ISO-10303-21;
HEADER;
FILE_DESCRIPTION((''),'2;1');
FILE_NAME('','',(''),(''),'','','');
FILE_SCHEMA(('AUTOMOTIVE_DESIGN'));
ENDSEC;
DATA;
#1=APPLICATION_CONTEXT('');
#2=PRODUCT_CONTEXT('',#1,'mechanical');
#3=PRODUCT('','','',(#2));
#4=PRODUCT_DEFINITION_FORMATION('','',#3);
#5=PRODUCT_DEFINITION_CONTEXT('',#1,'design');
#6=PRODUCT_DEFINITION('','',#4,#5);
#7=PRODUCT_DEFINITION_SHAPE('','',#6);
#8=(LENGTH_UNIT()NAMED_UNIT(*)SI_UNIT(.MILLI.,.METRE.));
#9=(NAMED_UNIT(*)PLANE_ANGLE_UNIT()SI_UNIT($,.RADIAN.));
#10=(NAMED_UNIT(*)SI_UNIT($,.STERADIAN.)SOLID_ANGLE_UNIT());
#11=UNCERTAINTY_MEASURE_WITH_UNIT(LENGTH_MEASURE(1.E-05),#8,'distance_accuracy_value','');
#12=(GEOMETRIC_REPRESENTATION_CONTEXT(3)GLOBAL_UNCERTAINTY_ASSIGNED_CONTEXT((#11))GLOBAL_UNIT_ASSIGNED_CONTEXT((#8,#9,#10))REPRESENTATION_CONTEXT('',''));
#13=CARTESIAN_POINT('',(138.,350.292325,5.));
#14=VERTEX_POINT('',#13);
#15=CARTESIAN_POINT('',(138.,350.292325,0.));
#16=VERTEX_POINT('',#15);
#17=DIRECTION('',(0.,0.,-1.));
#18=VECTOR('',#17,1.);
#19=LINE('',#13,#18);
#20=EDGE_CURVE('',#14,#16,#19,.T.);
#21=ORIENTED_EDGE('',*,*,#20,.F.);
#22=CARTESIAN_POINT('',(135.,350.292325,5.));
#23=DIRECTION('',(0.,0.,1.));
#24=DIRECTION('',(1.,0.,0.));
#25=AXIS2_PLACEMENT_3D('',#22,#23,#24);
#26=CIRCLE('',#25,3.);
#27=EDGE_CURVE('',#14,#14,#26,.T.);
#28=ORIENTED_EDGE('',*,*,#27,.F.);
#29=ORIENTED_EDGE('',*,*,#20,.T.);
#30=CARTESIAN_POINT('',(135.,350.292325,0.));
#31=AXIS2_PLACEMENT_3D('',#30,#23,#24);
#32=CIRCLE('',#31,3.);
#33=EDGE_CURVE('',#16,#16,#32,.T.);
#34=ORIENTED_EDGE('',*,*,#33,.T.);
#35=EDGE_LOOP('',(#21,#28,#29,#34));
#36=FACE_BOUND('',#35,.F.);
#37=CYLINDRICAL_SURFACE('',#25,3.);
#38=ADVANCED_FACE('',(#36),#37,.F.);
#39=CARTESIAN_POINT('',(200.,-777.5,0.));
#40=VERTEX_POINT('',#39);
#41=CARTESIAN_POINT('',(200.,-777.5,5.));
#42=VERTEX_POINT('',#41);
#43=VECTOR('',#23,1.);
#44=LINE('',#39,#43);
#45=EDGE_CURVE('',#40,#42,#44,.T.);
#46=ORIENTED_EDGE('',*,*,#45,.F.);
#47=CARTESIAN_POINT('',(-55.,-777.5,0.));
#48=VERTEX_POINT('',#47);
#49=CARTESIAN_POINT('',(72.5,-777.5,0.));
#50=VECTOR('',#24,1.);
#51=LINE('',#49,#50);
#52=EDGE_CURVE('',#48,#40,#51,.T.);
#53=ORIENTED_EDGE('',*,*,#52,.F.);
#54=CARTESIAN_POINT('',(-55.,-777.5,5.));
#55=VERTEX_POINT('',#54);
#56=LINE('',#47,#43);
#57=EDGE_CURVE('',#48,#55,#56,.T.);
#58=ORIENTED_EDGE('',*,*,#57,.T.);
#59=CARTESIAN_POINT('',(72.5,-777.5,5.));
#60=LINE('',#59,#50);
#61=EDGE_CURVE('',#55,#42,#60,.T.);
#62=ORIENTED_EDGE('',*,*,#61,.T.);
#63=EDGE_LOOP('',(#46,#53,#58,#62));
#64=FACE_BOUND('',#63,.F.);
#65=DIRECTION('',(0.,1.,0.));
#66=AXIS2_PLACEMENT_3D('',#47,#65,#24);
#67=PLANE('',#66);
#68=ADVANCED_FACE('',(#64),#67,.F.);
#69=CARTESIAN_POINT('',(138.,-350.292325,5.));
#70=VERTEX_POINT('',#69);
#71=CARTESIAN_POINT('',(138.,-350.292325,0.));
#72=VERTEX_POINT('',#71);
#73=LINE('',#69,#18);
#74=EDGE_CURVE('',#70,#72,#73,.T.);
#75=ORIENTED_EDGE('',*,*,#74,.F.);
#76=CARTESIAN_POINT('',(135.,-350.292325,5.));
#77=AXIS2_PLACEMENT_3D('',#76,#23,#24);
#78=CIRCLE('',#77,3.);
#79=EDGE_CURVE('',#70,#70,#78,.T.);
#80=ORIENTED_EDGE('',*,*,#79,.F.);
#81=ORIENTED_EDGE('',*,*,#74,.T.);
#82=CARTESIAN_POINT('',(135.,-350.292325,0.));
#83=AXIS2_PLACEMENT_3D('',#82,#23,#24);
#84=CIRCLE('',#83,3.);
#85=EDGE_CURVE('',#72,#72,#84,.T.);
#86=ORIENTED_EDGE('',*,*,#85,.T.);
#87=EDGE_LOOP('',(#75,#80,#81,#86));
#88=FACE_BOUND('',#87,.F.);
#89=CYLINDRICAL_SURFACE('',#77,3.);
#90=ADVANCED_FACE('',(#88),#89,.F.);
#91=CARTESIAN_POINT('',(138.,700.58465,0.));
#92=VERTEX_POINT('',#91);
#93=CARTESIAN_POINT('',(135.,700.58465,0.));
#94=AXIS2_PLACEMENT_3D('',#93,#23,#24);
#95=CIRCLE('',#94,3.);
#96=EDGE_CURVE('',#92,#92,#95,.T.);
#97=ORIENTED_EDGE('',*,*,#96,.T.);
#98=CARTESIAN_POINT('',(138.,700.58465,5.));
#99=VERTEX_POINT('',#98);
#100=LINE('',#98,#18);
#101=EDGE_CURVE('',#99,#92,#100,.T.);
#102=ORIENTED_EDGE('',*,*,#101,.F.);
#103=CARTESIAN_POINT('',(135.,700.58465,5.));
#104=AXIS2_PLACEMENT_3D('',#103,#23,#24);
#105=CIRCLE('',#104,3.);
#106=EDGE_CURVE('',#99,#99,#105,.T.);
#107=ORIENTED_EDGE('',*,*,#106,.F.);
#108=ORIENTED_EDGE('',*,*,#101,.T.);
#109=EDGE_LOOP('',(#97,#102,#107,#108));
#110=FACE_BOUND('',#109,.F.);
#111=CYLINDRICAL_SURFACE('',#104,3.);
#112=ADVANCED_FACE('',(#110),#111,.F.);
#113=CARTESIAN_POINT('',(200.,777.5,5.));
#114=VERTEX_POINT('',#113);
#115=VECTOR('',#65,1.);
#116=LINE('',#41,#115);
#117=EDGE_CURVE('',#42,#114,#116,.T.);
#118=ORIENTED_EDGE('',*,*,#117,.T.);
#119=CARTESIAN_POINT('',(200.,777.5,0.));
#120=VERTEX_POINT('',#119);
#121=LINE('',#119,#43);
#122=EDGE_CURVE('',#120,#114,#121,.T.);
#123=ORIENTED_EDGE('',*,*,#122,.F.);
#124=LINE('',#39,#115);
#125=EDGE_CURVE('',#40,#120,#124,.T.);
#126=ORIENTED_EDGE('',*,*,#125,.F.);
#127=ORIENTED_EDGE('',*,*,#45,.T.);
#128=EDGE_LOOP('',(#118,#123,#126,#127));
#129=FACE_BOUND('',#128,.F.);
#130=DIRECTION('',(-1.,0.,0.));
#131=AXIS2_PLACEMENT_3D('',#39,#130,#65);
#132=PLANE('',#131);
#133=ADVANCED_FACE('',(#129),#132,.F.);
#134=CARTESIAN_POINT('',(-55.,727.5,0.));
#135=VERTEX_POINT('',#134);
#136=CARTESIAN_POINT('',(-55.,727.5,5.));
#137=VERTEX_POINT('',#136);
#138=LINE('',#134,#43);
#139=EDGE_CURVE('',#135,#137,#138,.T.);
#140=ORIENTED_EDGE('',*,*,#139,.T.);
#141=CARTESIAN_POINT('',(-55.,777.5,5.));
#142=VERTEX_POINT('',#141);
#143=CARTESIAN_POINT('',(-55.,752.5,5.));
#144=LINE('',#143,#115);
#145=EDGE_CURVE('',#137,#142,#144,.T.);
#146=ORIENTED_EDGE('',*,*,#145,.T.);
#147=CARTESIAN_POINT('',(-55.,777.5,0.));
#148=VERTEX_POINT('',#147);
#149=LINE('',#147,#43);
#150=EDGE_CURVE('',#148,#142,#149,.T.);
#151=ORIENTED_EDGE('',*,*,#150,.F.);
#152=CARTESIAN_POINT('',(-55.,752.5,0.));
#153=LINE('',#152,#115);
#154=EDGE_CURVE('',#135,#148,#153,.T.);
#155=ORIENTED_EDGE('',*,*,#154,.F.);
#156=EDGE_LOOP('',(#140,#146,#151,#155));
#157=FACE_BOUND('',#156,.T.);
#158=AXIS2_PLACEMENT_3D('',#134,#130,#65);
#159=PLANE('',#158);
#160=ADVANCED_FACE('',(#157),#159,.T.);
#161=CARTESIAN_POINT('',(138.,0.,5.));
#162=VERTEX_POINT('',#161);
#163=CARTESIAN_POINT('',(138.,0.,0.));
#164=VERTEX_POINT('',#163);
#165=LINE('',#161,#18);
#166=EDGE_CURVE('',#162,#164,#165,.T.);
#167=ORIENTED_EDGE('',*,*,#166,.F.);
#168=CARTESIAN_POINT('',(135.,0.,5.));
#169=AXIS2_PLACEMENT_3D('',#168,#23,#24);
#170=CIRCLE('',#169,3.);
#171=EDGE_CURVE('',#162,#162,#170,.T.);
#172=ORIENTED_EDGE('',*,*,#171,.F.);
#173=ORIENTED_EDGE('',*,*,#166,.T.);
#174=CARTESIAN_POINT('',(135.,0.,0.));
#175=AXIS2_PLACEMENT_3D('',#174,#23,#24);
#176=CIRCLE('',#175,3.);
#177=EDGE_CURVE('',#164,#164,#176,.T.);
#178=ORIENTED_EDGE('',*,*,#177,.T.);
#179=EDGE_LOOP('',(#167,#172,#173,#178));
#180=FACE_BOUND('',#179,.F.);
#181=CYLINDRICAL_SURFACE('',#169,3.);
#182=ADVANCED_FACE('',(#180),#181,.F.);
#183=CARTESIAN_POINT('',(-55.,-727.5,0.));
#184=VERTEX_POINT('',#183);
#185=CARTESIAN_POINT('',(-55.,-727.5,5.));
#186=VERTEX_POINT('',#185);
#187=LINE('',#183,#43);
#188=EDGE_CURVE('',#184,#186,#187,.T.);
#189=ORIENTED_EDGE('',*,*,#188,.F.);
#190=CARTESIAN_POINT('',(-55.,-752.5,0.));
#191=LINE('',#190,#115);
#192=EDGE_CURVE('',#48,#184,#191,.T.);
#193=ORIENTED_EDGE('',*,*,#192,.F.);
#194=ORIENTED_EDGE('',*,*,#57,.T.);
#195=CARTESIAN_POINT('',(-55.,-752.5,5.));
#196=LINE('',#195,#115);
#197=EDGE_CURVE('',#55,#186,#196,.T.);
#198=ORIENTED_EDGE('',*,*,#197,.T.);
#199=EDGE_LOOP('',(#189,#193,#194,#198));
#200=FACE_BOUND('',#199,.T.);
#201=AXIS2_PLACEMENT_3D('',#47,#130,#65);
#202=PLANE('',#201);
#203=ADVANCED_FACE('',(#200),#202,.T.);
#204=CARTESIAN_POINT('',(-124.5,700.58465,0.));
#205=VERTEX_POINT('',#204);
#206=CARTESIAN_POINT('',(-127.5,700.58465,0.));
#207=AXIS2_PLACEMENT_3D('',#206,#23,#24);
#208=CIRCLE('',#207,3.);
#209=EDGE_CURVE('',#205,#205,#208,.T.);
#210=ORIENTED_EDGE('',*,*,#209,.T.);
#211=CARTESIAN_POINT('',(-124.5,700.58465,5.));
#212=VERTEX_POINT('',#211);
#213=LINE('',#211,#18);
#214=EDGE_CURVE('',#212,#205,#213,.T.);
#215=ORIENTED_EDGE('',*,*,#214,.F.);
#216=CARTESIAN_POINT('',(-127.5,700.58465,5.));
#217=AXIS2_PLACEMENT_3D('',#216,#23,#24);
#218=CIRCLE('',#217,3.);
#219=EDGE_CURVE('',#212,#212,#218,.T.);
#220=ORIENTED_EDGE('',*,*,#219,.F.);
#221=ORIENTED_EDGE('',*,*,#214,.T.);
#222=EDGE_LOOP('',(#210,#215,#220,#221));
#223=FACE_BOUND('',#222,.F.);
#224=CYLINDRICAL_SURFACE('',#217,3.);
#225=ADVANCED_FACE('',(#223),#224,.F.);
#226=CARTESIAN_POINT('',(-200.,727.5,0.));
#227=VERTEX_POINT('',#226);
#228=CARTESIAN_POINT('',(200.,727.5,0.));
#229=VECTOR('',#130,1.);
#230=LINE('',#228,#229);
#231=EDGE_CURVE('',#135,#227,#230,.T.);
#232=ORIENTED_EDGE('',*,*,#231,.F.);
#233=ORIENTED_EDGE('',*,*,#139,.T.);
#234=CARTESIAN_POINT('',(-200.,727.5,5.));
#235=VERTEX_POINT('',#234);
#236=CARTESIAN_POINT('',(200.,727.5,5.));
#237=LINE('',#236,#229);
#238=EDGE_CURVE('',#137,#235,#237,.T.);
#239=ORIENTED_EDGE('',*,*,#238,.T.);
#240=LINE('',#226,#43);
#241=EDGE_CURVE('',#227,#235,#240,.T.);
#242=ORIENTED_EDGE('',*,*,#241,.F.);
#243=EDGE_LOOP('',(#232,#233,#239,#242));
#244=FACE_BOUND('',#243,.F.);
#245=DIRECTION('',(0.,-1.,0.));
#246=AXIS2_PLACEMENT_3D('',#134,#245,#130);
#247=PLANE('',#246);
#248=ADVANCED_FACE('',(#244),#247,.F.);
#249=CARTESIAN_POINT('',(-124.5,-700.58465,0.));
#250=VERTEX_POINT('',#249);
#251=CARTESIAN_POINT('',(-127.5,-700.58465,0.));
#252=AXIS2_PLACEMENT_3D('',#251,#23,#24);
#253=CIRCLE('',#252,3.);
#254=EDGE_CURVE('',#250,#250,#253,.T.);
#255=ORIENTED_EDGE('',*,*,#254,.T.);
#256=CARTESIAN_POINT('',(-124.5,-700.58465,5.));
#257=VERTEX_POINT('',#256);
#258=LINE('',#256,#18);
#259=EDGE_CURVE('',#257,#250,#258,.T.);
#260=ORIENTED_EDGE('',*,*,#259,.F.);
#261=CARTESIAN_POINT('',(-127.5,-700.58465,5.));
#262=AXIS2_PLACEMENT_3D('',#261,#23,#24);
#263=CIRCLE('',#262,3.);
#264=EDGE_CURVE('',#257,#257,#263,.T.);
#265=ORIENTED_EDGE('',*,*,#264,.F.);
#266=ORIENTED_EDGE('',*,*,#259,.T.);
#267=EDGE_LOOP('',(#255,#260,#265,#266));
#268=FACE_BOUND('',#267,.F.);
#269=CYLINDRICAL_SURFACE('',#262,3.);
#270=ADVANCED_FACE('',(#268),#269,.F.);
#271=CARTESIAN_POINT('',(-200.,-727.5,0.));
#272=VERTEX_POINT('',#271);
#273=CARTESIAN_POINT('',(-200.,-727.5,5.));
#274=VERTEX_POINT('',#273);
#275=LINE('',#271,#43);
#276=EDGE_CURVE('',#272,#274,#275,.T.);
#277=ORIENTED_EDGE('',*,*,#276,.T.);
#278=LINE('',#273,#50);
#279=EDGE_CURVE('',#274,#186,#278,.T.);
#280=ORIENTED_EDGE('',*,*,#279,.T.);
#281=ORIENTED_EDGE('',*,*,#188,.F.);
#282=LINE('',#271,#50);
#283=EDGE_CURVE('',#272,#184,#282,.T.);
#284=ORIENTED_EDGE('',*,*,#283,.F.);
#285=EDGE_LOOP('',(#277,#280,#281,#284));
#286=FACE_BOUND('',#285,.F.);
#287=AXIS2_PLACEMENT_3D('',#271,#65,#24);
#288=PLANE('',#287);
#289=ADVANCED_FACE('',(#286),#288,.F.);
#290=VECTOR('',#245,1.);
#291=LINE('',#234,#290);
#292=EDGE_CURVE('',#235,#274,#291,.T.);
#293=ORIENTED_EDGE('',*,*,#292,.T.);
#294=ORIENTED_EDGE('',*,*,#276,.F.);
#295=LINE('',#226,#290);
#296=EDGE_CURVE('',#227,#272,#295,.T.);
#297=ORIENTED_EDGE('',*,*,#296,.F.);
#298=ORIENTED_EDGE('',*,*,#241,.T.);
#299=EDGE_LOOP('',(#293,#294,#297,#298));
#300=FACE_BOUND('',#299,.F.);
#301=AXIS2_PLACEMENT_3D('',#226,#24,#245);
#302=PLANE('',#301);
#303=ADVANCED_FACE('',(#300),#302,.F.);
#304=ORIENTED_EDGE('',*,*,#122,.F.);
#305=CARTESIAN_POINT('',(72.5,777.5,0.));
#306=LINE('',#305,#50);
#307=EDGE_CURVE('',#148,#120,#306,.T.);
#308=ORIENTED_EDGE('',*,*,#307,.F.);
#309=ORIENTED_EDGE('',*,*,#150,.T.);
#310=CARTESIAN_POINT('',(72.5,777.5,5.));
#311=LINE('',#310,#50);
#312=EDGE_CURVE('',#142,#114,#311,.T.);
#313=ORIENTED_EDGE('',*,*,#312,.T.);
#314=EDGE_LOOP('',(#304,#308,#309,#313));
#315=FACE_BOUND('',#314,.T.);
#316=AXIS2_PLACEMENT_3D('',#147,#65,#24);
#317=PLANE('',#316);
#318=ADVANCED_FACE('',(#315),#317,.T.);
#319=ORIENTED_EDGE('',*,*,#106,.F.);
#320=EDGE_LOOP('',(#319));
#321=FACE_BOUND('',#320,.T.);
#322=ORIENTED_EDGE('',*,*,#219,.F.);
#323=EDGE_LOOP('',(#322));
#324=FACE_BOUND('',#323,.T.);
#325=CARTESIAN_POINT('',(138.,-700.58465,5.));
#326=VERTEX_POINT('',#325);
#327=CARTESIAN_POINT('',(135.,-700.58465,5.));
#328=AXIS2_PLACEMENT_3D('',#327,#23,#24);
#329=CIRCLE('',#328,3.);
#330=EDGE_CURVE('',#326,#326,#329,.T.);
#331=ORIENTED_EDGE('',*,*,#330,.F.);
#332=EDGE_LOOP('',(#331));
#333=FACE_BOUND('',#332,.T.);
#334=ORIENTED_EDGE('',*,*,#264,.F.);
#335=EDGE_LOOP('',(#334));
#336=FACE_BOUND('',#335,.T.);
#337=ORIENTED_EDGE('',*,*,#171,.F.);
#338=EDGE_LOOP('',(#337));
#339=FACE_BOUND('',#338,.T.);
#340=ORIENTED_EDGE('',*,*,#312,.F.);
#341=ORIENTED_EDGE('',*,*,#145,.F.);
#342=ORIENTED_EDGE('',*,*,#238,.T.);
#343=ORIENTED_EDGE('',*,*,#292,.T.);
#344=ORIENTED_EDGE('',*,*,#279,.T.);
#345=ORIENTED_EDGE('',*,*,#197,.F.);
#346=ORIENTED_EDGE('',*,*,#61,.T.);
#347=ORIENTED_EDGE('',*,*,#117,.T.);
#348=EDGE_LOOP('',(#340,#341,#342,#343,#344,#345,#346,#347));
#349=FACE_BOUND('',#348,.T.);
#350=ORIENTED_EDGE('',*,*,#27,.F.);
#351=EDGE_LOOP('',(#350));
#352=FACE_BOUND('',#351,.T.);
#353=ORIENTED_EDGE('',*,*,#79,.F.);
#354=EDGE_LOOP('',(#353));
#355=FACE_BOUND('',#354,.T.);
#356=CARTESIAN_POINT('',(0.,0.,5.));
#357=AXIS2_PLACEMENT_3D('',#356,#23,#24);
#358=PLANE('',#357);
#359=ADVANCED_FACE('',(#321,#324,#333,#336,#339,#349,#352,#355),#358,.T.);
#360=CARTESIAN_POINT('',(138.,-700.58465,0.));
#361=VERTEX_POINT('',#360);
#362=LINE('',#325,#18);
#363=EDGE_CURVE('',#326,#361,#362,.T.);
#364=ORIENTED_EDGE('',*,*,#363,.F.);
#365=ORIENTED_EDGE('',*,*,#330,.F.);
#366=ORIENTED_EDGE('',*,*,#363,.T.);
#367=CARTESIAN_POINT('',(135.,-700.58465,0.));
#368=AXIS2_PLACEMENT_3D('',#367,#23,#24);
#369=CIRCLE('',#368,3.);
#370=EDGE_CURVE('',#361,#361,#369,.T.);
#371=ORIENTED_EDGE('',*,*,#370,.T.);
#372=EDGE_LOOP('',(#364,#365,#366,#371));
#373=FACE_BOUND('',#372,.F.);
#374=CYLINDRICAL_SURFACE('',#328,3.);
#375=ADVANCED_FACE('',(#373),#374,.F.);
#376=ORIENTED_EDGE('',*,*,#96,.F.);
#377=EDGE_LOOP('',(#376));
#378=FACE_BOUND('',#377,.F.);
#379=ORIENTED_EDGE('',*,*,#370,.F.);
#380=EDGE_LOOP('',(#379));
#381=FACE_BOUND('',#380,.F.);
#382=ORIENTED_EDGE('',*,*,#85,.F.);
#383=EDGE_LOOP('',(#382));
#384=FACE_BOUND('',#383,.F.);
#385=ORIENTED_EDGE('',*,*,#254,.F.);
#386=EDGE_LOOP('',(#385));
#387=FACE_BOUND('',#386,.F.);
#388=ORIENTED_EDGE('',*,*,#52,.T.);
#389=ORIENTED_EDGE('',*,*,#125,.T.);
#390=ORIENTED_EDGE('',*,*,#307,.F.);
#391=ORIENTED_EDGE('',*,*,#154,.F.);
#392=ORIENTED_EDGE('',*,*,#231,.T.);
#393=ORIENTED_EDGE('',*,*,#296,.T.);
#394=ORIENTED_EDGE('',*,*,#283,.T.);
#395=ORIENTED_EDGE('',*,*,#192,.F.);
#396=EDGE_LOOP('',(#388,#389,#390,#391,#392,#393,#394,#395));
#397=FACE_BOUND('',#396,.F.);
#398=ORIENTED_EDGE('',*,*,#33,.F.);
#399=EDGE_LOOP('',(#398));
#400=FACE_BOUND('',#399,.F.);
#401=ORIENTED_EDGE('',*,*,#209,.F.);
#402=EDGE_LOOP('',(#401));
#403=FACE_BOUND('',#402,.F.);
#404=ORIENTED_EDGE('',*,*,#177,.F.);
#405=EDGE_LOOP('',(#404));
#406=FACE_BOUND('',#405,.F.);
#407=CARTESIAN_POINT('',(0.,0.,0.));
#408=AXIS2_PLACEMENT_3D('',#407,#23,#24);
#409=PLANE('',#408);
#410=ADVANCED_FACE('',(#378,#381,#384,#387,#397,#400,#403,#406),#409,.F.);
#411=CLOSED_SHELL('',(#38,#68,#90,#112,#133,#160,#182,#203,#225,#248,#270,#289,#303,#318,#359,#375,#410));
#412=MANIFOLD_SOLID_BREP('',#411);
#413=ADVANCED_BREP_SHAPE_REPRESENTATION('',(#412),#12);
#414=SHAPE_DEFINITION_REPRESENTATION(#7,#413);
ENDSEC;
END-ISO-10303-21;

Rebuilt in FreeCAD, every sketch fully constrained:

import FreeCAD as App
import Part
import Sketcher

V = App.Vector

doc = App.newDocument("Part")
params = doc.addObject("Spreadsheet::Sheet", "Params")
for row, (alias, value) in enumerate([
    ("sketch1_width", "145 mm"),
    ("sketch1_width2", "255 mm"),
    ("sketch1_height", "1455 mm"),
    ("sketch1_height2", "50 mm"),
    ("pad1_length", "5 mm"),
    ("sketch2_diameter", "6 mm"),
], start=1):
    params.set(f"A{row}", alias)
    params.set(f"B{row}", "=" + value)
    params.setAlias(f"B{row}", alias)

body = doc.addObject("PartDesign::Body", "Body")

# Sketch on XY plane
sketch1 = body.newObject("Sketcher::SketchObject", "Sketch")
sketch1.AttachmentSupport = (doc.getObject("XY_Plane"), [""])
sketch1.MapMode = "FlatFace"
sketch1.addGeometry([
    Part.LineSegment(V(-55, 728, 0), V(-200, 728, 0)),  # 0
    Part.LineSegment(V(-200, 728, 0), V(-200, -728, 0)),  # 1
    Part.LineSegment(V(-200, -728, 0), V(-55, -728, 0)),  # 2
    Part.LineSegment(V(-55, -728, 0), V(-55, -778, 0)),  # 3
    Part.LineSegment(V(-55, -778, 0), V(200, -778, 0)),  # 4
    Part.LineSegment(V(200, -778, 0), V(200, 778, 0)),  # 5
    Part.LineSegment(V(200, 778, 0), V(-55, 778, 0)),  # 6
    Part.LineSegment(V(-55, 778, 0), V(-55, 728, 0)),  # 7
], False)
sketch1.addConstraint([
    Sketcher.Constraint("Coincident", 0, 2, 1, 1),
    Sketcher.Constraint("Coincident", 1, 2, 2, 1),
    Sketcher.Constraint("Coincident", 2, 2, 3, 1),
    Sketcher.Constraint("Coincident", 3, 2, 4, 1),
    Sketcher.Constraint("Coincident", 4, 2, 5, 1),
    Sketcher.Constraint("Coincident", 5, 2, 6, 1),
    Sketcher.Constraint("Coincident", 6, 2, 7, 1),
    Sketcher.Constraint("Coincident", 7, 2, 0, 1),
    Sketcher.Constraint("Horizontal", 0),
    Sketcher.Constraint("Vertical", 1),
    Sketcher.Constraint("Horizontal", 2),
    Sketcher.Constraint("Vertical", 3),
    Sketcher.Constraint("Horizontal", 4),
    Sketcher.Constraint("Vertical", 5),
    Sketcher.Constraint("Horizontal", 6),
    Sketcher.Constraint("Vertical", 7),
    Sketcher.Constraint("Symmetric", 3, 2, 6, 2, -1),
    Sketcher.Constraint("Equal", 3, 7),
    Sketcher.Constraint("DistanceX", 0, 2, 0, 1, 145.0),
    Sketcher.Constraint("DistanceX", 4, 1, 4, 2, 255.0),
    Sketcher.Constraint("DistanceY", 1, 2, 1, 1, 1455.0),
    Sketcher.Constraint("DistanceY", 3, 2, 3, 1, 50.0),
    Sketcher.Constraint("DistanceX", 0, 2, -1, 1, 200.0),
])
sketch1.setExpression("Constraints[18]", "Params.sketch1_width")
sketch1.setExpression("Constraints[19]", "Params.sketch1_width2")
sketch1.setExpression("Constraints[20]", "Params.sketch1_height")
sketch1.setExpression("Constraints[21]", "Params.sketch1_height2")
pad1 = body.newObject("PartDesign::Pad", "Pad")
pad1.Profile = sketch1
pad1.setExpression("Length", "Params.pad1_length")

# Sketch on XY plane
sketch2 = body.newObject("Sketcher::SketchObject", "Sketch001")
sketch2.AttachmentSupport = (doc.getObject("XY_Plane"), [""])
sketch2.MapMode = "FlatFace"
sketch2.AttachmentOffset = App.Placement(V(0, 0, 5), App.Rotation())
sketch2.addGeometry([
    Part.Circle(V(135, 0, 0), V(0, 0, 1), 3),  # 0
    Part.Circle(V(-127.5, -700.6, 0), V(0, 0, 1), 3),  # 1
    Part.Circle(V(135, -700.6, 0), V(0, 0, 1), 3),  # 2
    Part.Circle(V(135, -350.3, 0), V(0, 0, 1), 3),  # 3
    Part.Circle(V(-127.5, 700.6, 0), V(0, 0, 1), 3),  # 4
    Part.Circle(V(135, 700.6, 0), V(0, 0, 1), 3),  # 5
    Part.Circle(V(135, 350.3, 0), V(0, 0, 1), 3),  # 6
], False)
sketch2.addConstraint([
    Sketcher.Constraint("Equal", 0, 1),
    Sketcher.Constraint("Equal", 1, 2),
    Sketcher.Constraint("Equal", 2, 3),
    Sketcher.Constraint("Equal", 3, 4),
    Sketcher.Constraint("Equal", 4, 5),
    Sketcher.Constraint("Equal", 5, 6),
    Sketcher.Constraint("Symmetric", 1, 3, 4, 3, -1),
    Sketcher.Constraint("Symmetric", 2, 3, 5, 3, -1),
    Sketcher.Constraint("Symmetric", 3, 3, 6, 3, -1),
    Sketcher.Constraint("PointOnObject", 0, 3, -1),
    Sketcher.Constraint("Horizontal", 1, 3, 2, 3),
    Sketcher.Constraint("Vertical", 0, 3, 2, 3),
    Sketcher.Constraint("Vertical", 2, 3, 3, 3),
    Sketcher.Constraint("Diameter", 0, 6.0),
    Sketcher.Constraint("DistanceX", -1, 1, 0, 3, 135.0),
    Sketcher.Constraint("DistanceX", 1, 3, -1, 1, 127.5),
    Sketcher.Constraint("DistanceY", 1, 3, 4, 3, 1401.1693),
    Sketcher.Constraint("DistanceY", 3, 3, 6, 3, 700.58465),
])
sketch2.setExpression("Constraints[13]", "Params.sketch2_diameter")
pocket1 = body.newObject("PartDesign::Pocket", "Pocket")
pocket1.Profile = sketch2
pocket1.Type = "ThroughAll"

doc.recompute()
